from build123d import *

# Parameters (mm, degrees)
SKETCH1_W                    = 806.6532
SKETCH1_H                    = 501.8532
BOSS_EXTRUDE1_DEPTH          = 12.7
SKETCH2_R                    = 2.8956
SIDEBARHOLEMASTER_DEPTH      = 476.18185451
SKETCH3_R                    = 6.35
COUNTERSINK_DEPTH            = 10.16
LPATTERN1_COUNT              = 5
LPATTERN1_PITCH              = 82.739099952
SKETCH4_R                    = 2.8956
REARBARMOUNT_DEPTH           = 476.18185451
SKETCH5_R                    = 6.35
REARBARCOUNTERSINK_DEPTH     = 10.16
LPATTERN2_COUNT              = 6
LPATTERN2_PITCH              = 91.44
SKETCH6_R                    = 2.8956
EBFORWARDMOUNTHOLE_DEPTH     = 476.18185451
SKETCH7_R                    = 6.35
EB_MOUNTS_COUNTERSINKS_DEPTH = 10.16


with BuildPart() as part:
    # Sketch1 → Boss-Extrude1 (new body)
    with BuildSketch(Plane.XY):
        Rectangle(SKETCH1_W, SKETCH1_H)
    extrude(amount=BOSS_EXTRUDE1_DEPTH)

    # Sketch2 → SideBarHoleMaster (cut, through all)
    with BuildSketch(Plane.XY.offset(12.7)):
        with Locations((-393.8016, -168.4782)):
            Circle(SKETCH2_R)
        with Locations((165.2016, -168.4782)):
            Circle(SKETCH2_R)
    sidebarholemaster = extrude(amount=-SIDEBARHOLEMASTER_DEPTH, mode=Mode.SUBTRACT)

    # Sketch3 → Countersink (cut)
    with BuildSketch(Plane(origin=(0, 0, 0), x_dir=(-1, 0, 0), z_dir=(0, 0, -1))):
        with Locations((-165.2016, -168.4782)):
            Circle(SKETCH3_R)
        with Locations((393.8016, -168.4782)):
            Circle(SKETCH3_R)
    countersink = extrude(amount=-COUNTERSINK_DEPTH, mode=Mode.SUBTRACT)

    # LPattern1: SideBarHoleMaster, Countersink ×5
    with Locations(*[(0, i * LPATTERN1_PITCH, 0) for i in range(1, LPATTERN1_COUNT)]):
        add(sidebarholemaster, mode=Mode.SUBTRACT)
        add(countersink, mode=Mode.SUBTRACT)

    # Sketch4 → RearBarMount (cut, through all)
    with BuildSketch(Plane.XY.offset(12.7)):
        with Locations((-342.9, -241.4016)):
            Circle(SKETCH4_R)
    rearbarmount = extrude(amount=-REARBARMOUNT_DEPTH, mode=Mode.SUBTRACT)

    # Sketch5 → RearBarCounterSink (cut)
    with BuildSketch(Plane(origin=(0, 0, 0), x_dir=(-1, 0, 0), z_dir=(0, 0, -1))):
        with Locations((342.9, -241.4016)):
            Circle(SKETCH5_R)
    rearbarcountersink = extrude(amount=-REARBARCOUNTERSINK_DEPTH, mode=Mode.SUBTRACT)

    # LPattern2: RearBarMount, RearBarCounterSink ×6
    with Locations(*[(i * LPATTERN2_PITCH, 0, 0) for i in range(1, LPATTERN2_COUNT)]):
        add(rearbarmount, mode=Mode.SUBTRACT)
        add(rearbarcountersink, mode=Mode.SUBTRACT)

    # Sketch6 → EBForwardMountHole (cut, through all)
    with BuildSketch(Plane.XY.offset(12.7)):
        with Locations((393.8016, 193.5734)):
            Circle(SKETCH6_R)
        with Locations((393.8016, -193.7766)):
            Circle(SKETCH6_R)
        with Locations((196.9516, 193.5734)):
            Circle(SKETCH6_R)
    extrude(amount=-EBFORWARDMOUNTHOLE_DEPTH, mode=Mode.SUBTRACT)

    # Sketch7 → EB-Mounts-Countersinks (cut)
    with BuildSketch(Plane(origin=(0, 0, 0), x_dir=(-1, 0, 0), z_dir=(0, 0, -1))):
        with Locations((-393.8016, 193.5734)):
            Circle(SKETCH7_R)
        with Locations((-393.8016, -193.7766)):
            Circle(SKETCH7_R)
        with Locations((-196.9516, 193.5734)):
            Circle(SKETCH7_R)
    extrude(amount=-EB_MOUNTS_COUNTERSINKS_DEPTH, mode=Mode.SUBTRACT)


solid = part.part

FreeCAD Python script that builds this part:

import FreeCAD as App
import Part
import Sketcher

V = App.Vector
Q = App.Units.Quantity

doc = App.newDocument("Part")
body = doc.addObject("PartDesign::Body", "Body")

# Sketch on XY plane
sketch1 = body.newObject("Sketcher::SketchObject", "Sketch")
sketch1.AttachmentSupport = (doc.getObject("XY_Plane"), [""])
sketch1.MapMode = "FlatFace"
sketch1.addGeometry([
    Part.LineSegment(V(-403.3266, 250.9266, 0), V(-403.3266, -250.9266, 0)),
    Part.LineSegment(V(-403.3266, -250.9266, 0), V(403.3266, -250.9266, 0)),
    Part.LineSegment(V(403.3266, -250.9266, 0), V(403.3266, 250.9266, 0)),
    Part.LineSegment(V(403.3266, 250.9266, 0), V(-403.3266, 250.9266, 0)),
], False)
sketch1.addConstraint([
    Sketcher.Constraint("Coincident", 0, 2, 1, 1),
    Sketcher.Constraint("Coincident", 1, 2, 2, 1),
    Sketcher.Constraint("Coincident", 2, 2, 3, 1),
    Sketcher.Constraint("Coincident", 3, 2, 0, 1),
    Sketcher.Constraint("Vertical", 0),
    Sketcher.Constraint("Horizontal", 1),
    Sketcher.Constraint("Vertical", 2),
    Sketcher.Constraint("Horizontal", 3),
    Sketcher.Constraint("Symmetric", 0, 2, 2, 2, -1, 1),
    Sketcher.Constraint("DistanceX", 1, 1, 1, 2, Q("31.758 in")),
    Sketcher.Constraint("DistanceY", 0, 2, 0, 1, Q("19.758 in")),
])
pad1 = body.newObject("PartDesign::Pad", "Pad")
pad1.Profile = sketch1
pad1.Length = Q("0.5 in")

# Sketch on XY plane
sketch2 = body.newObject("Sketcher::SketchObject", "Sketch001")
sketch2.AttachmentSupport = (doc.getObject("XY_Plane"), [""])
sketch2.MapMode = "FlatFace"
sketch2.AttachmentOffset = App.Placement(V(0, 0, 0.5 * 25.4), App.Rotation())
sketch2.addGeometry([
    Part.Circle(V(-393.8016, -168.4782, 0), V(0, 0, 1), 2.8956),
    Part.Circle(V(165.2016, -168.4782, 0), V(0, 0, 1), 2.8956),
], False)
sketch2.addConstraint([
    Sketcher.Constraint("Equal", 0, 1),
    Sketcher.Constraint("Horizontal", 0, 3, 1, 3),
    Sketcher.Constraint("Diameter", 0, Q("0.228 in")),
    Sketcher.Constraint("DistanceX", 0, 3, -1, 1, Q("15.504 in")),
    Sketcher.Constraint("DistanceY", 0, 3, -1, 1, Q("6.633 in")),
    Sketcher.Constraint("DistanceX", -1, 1, 1, 3, Q("6.504 in")),
])
pocket1 = body.newObject("PartDesign::Pocket", "Pocket")
pocket1.Profile = sketch2
pocket1.Type = "ThroughAll"

# Sketch on XY plane
sketch3 = body.newObject("Sketcher::SketchObject", "Sketch002")
sketch3.AttachmentSupport = (doc.getObject("XY_Plane"), [""])
sketch3.MapMode = "FlatFace"
sketch3.addGeometry([
    Part.Circle(V(165.2016, -168.4782, 0), V(0, 0, 1), 6.35),
    Part.Circle(V(-393.8016, -168.4782, 0), V(0, 0, 1), 6.35),
], False)
sketch3.addConstraint([
    Sketcher.Constraint("Equal", 0, 1),
    Sketcher.Constraint("Horizontal", 0, 3, 1, 3),
    Sketcher.Constraint("Diameter", 0, Q("0.5 in")),
    Sketcher.Constraint("DistanceX", -1, 1, 0, 3, Q("6.504 in")),
    Sketcher.Constraint("DistanceY", 0, 3, -1, 1, Q("6.633 in")),
    Sketcher.Constraint("DistanceX", 1, 3, -1, 1, Q("15.504 in")),
])
pocket2 = body.newObject("PartDesign::Pocket", "Pocket001")
pocket2.Profile = sketch3
pocket2.Length = Q("0.4 in")
pocket2.Reversed = True
doc.recompute()

linearpattern = body.newObject("PartDesign::LinearPattern", "LinearPattern")
linearpattern.Originals = [pocket1, pocket2]
linearpattern.Direction = (doc.getObject("Y_Axis"), [""])
linearpattern.Mode = "offset"
linearpattern.Offset = 82.7391
linearpattern.Occurrences = 5
body.Tip = linearpattern

# Sketch on XY plane
sketch4 = body.newObject("Sketcher::SketchObject", "Sketch003")
sketch4.AttachmentSupport = (doc.getObject("XY_Plane"), [""])
sketch4.MapMode = "FlatFace"
sketch4.AttachmentOffset = App.Placement(V(0, 0, 0.5 * 25.4), App.Rotation())
sketch4.addGeometry(Part.Circle(V(-342.9, -241.4016, 0), V(0, 0, 1), 2.8956), False)
sketch4.addConstraint([
    Sketcher.Constraint("Diameter", 0, Q("0.228 in")),
    Sketcher.Constraint("DistanceX", 0, 3, -1, 1, Q("13.5 in")),
    Sketcher.Constraint("DistanceY", 0, 3, -1, 1, Q("9.504 in")),
])
pocket3 = body.newObject("PartDesign::Pocket", "Pocket002")
pocket3.Profile = sketch4
pocket3.Type = "ThroughAll"

# Sketch on XY plane
sketch5 = body.newObject("Sketcher::SketchObject", "Sketch004")
sketch5.AttachmentSupport = (doc.getObject("XY_Plane"), [""])
sketch5.MapMode = "FlatFace"
sketch5.addGeometry(Part.Circle(V(-342.9, -241.4016, 0), V(0, 0, 1), 6.35), False)
sketch5.addConstraint([
    Sketcher.Constraint("Diameter", 0, Q("0.5 in")),
    Sketcher.Constraint("DistanceX", 0, 3, -1, 1, Q("13.5 in")),
    Sketcher.Constraint("DistanceY", 0, 3, -1, 1, Q("9.504 in")),
])
pocket4 = body.newObject("PartDesign::Pocket", "Pocket003")
pocket4.Profile = sketch5
pocket4.Length = Q("0.4 in")
pocket4.Reversed = True
doc.recompute()

linearpattern2 = body.newObject("PartDesign::LinearPattern", "LinearPattern001")
linearpattern2.Originals = [pocket3, pocket4]
linearpattern2.Direction = (doc.getObject("X_Axis"), [""])
linearpattern2.Mode = "offset"
linearpattern2.Offset = Q("3.6 in")
linearpattern2.Occurrences = 6
body.Tip = linearpattern2

# Sketch on XY plane
sketch6 = body.newObject("Sketcher::SketchObject", "Sketch005")
sketch6.AttachmentSupport = (doc.getObject("XY_Plane"), [""])
sketch6.MapMode = "FlatFace"
sketch6.AttachmentOffset = App.Placement(V(0, 0, 0.5 * 25.4), App.Rotation())
sketch6.addGeometry([
    Part.Circle(V(393.8016, 193.5734, 0), V(0, 0, 1), 2.8956),
    Part.Circle(V(393.8016, -193.7766, 0), V(0, 0, 1), 2.8956),
    Part.Circle(V(196.9516, 193.5734, 0), V(0, 0, 1), 2.8956),
], False)
sketch6.addConstraint([
    Sketcher.Constraint("Equal", 0, 1),
    Sketcher.Constraint("Equal", 1, 2),
    Sketcher.Constraint("Horizontal", 0, 3, 2, 3),
    Sketcher.Constraint("Vertical", 0, 3, 1, 3),
    Sketcher.Constraint("Diameter", 0, Q("0.228 in")),
    Sketcher.Constraint("DistanceY", 1, 3, 0, 3, Q("15.25 in")),
    Sketcher.Constraint("DistanceX", 2, 3, 0, 3, Q("7.75 in")),
    Sketcher.Constraint("DistanceX", -1, 1, 0, 3, Q("15.504 in")),
    Sketcher.Constraint("DistanceY", -1, 1, 0, 3, Q("7.621 in")),
])
pocket5 = body.newObject("PartDesign::Pocket", "Pocket004")
pocket5.Profile = sketch6
pocket5.Type = "ThroughAll"

# Sketch on XY plane
sketch7 = body.newObject("Sketcher::SketchObject", "Sketch006")
sketch7.AttachmentSupport = (doc.getObject("XY_Plane"), [""])
sketch7.MapMode = "FlatFace"
sketch7.addGeometry([
    Part.Circle(V(393.8016, 193.5734, 0), V(0, 0, 1), 6.35),
    Part.Circle(V(393.8016, -193.7766, 0), V(0, 0, 1), 6.35),
    Part.Circle(V(196.9516, 193.5734, 0), V(0, 0, 1), 6.35),
], False)
sketch7.addConstraint([
    Sketcher.Constraint("Equal", 0, 1),
    Sketcher.Constraint("Equal", 1, 2),
    Sketcher.Constraint("Horizontal", 0, 3, 2, 3),
    Sketcher.Constraint("Vertical", 0, 3, 1, 3),
    Sketcher.Constraint("Diameter", 0, Q("0.5 in")),
    Sketcher.Constraint("DistanceY", 1, 3, 0, 3, Q("15.25 in")),
    Sketcher.Constraint("DistanceX", 2, 3, 0, 3, Q("7.75 in")),
    Sketcher.Constraint("DistanceX", -1, 1, 0, 3, Q("15.504 in")),
    Sketcher.Constraint("DistanceY", -1, 1, 0, 3, Q("7.621 in")),
])
pocket6 = body.newObject("PartDesign::Pocket", "Pocket005")
pocket6.Profile = sketch7
pocket6.Length = Q("0.4 in")
pocket6.Reversed = True

doc.recompute()
